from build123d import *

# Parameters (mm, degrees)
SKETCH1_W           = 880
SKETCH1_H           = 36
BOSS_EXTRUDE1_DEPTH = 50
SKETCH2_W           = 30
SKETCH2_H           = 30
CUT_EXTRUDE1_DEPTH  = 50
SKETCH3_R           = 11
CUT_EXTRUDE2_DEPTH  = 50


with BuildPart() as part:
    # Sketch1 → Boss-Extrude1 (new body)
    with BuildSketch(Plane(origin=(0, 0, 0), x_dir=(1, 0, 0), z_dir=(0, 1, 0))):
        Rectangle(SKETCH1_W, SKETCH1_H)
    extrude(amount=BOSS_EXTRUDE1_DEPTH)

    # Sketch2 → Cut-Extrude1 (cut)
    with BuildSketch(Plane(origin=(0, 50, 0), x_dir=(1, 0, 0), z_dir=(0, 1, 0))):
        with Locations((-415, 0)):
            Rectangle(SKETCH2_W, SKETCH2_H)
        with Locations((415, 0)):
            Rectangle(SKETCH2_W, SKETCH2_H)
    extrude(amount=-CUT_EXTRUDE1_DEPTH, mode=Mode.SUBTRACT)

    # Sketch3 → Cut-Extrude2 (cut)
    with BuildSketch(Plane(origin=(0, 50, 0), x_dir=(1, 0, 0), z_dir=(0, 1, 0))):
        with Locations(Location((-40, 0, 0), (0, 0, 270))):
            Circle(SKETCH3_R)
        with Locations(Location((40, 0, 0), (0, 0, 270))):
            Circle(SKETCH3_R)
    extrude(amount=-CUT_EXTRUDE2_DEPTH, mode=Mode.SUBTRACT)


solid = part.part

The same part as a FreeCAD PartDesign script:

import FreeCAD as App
import Part
import Sketcher

V = App.Vector
Q = App.Units.Quantity


def add_polygon(sketch, points):
    """Adds a closed chain of lines whose ends are joined by coincident constraints."""
    first, n = sketch.GeometryCount, len(points)
    for a, b in zip(points, points[1:] + points[:1]):
        sketch.addGeometry(Part.LineSegment(App.Vector(*a, 0), App.Vector(*b, 0)), False)
    for i in range(n):
        sketch.addConstraint(Sketcher.Constraint("Coincident", first + i, 2, first + (i + 1) % n, 1))

doc = App.newDocument("Part")
body = doc.addObject("PartDesign::Body", "Body")

# Sketch on XZ plane
sketch1 = body.newObject("Sketcher::SketchObject", "Sketch")
sketch1.AttachmentSupport = (doc.getObject("XZ_Plane"), [""])
sketch1.MapMode = "FlatFace"
add_polygon(sketch1, [(-440, -18), (-440, 18), (440, 18), (440, -18)])  # lines 0-3
sketch1.addConstraint([
    Sketcher.Constraint("Vertical", 0),
    Sketcher.Constraint("Horizontal", 1),
    Sketcher.Constraint("Vertical", 2),
    Sketcher.Constraint("Horizontal", 3),
    Sketcher.Constraint("Symmetric", 0, 2, 2, 2, -1, 1),
    Sketcher.Constraint("DistanceX", 1, 1, 1, 2, Q("880 mm")),
    Sketcher.Constraint("DistanceY", 0, 1, 0, 2, Q("36 mm")),
])
pad1 = body.newObject("PartDesign::Pad", "Pad")
pad1.Profile = sketch1
pad1.Length = 50
pad1.Reversed = True

# Sketch on XZ plane
sketch2 = body.newObject("Sketcher::SketchObject", "Sketch001")
sketch2.AttachmentSupport = (doc.getObject("XZ_Plane"), [""])
sketch2.MapMode = "FlatFace"
sketch2.AttachmentOffset = App.Placement(V(0, 0, -50), App.Rotation())
add_polygon(sketch2, [(-430, -15), (-430, 15), (-400, 15), (-400, -15)])  # lines 0-3
add_polygon(sketch2, [(400, -15), (400, 15), (430, 15), (430, -15)])  # lines 4-7
sketch2.addConstraint([
    Sketcher.Constraint("Vertical", 0),
    Sketcher.Constraint("Horizontal", 1),
    Sketcher.Constraint("Vertical", 2),
    Sketcher.Constraint("Horizontal", 3),
    Sketcher.Constraint("Vertical", 4),
    Sketcher.Constraint("Horizontal", 5),
    Sketcher.Constraint("Vertical", 6),
    Sketcher.Constraint("Horizontal", 7),
    Sketcher.Constraint("Symmetric", 2, 2, 4, 2, -1, 1),
    Sketcher.Constraint("Symmetric", 0, 2, 6, 2, -1, 1),
    Sketcher.Constraint("Horizontal", 1, 2, 4, 2),
    Sketcher.Constraint("Equal", 7, 0),
    Sketcher.Constraint("DistanceX", 1, 1, 1, 2, Q("30 mm")),
    Sketcher.Constraint("DistanceX", 0, 2, -1, 1, Q("430 mm")),
])
pocket1 = body.newObject("PartDesign::Pocket", "Pocket")
pocket1.Profile = sketch2
pocket1.Length = 50
pocket1.Reversed = True

# Sketch on XZ plane
sketch3 = body.newObject("Sketcher::SketchObject", "Sketch002")
sketch3.AttachmentSupport = (doc.getObject("XZ_Plane"), [""])
sketch3.MapMode = "FlatFace"
sketch3.AttachmentOffset = App.Placement(V(0, 0, -50), App.Rotation())
sketch3.addGeometry([
    Part.Circle(V(-40, 0, 0), V(0, 0, 1), 11),
    Part.Circle(V(40, 0, 0), V(0, 0, 1), 11),
], False)
sketch3.addConstraint([
    Sketcher.Constraint("Equal", 0, 1),
    Sketcher.Constraint("Symmetric", 0, 3, 1, 3, -1, 1),
    Sketcher.Constraint("PointOnObject", 0, 3, -1),
    Sketcher.Constraint("Diameter", 0, Q("22 mm")),
    Sketcher.Constraint("DistanceX", 0, 3, -1, 1, Q("40 mm")),
])
pocket2 = body.newObject("PartDesign::Pocket", "Pocket001")
pocket2.Profile = sketch3
pocket2.Length = 50
pocket2.Reversed = True

doc.recompute()
